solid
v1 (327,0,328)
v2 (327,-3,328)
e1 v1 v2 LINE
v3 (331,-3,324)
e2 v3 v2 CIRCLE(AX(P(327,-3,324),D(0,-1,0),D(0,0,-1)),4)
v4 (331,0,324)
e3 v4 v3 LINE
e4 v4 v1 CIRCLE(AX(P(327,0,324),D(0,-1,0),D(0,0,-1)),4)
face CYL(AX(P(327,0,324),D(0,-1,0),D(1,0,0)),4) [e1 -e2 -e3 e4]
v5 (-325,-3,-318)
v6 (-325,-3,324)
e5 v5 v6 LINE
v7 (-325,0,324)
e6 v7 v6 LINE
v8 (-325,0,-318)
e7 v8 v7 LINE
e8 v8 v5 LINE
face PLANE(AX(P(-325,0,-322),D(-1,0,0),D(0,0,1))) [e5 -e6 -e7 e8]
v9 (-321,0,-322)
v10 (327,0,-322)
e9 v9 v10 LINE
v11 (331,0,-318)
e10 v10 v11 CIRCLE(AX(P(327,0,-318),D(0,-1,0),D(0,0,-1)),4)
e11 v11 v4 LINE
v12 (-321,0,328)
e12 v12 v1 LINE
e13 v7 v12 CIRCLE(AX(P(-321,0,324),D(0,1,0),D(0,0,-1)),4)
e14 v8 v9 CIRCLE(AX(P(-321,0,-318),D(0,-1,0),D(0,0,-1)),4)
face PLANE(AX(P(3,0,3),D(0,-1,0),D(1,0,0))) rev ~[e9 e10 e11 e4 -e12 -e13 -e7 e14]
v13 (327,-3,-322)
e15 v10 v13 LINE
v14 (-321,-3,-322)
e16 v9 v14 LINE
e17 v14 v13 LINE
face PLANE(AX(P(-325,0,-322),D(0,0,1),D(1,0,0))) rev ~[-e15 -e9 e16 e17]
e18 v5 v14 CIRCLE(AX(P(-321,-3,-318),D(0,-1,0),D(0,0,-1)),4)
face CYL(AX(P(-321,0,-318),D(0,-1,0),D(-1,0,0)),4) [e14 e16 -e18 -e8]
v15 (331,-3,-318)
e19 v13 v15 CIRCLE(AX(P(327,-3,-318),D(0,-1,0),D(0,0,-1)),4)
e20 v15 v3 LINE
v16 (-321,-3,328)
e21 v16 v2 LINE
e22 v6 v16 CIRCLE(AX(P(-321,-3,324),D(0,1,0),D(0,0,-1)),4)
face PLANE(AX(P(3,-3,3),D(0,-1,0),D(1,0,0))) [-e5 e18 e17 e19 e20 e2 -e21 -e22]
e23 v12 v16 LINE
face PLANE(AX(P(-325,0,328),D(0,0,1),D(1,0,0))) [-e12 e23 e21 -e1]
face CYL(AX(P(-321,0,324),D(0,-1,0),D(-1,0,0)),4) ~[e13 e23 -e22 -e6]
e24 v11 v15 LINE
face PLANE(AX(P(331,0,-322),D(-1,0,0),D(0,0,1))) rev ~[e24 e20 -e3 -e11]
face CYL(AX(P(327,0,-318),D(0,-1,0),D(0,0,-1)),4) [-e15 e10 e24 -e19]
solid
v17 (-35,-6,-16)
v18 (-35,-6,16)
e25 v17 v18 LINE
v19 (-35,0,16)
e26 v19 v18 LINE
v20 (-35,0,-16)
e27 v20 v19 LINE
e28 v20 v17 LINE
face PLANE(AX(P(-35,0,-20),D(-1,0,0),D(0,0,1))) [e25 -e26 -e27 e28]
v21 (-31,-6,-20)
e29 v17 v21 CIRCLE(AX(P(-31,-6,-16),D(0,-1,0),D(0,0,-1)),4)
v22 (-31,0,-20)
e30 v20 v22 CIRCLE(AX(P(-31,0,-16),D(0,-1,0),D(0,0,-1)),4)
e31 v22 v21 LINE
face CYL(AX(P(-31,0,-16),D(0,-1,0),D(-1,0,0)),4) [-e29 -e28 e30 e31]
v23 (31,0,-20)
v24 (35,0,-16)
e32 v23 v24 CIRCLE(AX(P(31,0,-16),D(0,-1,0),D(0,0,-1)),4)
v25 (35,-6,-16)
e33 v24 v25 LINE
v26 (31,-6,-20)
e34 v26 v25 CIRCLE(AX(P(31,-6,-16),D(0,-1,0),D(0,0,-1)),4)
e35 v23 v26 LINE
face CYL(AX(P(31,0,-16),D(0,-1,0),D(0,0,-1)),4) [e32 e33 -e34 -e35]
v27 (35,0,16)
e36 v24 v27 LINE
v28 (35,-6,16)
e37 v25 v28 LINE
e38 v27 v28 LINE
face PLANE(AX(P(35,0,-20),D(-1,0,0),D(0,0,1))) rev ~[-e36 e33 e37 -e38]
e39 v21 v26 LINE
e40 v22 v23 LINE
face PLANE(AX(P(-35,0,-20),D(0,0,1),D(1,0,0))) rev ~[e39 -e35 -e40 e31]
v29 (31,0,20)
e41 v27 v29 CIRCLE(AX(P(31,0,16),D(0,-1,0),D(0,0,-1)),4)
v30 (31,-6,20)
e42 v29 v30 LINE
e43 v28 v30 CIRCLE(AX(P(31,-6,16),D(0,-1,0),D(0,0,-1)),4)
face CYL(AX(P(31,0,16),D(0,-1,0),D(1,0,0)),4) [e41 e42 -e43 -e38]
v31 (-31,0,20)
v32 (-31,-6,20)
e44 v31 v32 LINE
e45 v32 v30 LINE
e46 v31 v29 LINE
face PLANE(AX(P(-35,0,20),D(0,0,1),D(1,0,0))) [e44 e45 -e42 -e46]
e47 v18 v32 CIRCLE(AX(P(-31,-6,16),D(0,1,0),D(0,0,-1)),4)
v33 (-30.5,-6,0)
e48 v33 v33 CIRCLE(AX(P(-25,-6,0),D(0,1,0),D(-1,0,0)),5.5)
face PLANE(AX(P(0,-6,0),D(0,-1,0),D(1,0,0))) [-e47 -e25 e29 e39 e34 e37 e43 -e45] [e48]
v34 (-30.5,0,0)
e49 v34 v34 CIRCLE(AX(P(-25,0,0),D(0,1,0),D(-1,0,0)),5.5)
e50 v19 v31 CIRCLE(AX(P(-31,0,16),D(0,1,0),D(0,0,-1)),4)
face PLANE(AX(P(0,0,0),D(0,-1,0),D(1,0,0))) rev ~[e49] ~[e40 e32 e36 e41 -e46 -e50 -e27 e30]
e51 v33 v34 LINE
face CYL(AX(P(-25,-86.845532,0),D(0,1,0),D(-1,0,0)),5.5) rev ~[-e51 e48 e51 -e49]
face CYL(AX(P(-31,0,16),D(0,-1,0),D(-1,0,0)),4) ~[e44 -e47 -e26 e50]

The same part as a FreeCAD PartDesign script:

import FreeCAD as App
import Part
import Sketcher


def edges_at(feature, points):
    """Names of the edges that pass closest to the given points."""
    edges = feature.Shape.Edges
    near = lambda p: min(range(len(edges)), key=lambda i: edges[i].distToShape(Part.Vertex(*p))[0])
    return sorted({f"Edge{near(p) + 1}" for p in points})

doc = App.newDocument("Part")
body = doc.addObject("PartDesign::Body", "Body")

sketch1 = body.newObject("Sketcher::SketchObject", "Sketch")
sketch1.AttachmentSupport = (doc.getObject("XZ_Plane"), [""])
sketch1.MapMode = "FlatFace"
sketch1.addGeometry(Part.LineSegment(App.Vector(-35, 20, 0), App.Vector(-35, -20, 0)), False)
sketch1.addGeometry(Part.LineSegment(App.Vector(-35, -20, 0), App.Vector(35, -20, 0)), False)
sketch1.addGeometry(Part.LineSegment(App.Vector(35, -20, 0), App.Vector(35, 20, 0)), False)
sketch1.addGeometry(Part.LineSegment(App.Vector(35, 20, 0), App.Vector(-35, 20, 0)), False)
sketch1.addConstraint(Sketcher.Constraint("Coincident", 0, 2, 1, 1))
sketch1.addConstraint(Sketcher.Constraint("Coincident", 1, 2, 2, 1))
sketch1.addConstraint(Sketcher.Constraint("Coincident", 2, 2, 3, 1))
sketch1.addConstraint(Sketcher.Constraint("Coincident", 3, 2, 0, 1))
sketch1.addConstraint(Sketcher.Constraint("Vertical", 0))
sketch1.addConstraint(Sketcher.Constraint("Horizontal", 1))
sketch1.addConstraint(Sketcher.Constraint("Vertical", 2))
sketch1.addConstraint(Sketcher.Constraint("Horizontal", 3))
sketch1.addConstraint(Sketcher.Constraint("Symmetric", 0, 2, 2, 2, -1, 1))
sketch1.addConstraint(Sketcher.Constraint("DistanceX", 1, 1, 1, 2, 70.0))
sketch1.addConstraint(Sketcher.Constraint("DistanceY", 0, 2, 0, 1, 40.0))
pad1 = body.newObject("PartDesign::Pad", "Pad")
pad1.Profile = sketch1
pad1.Length = 6
doc.recompute()

fillet = body.newObject("PartDesign::Fillet", "Fillet")
fillet.Base = (pad1, edges_at(pad1, [
    (35, -3, 20),
    (35, -3, -20),
    (-35, -3, 20),
    (-35, -3, -20),
]))
fillet.Radius = 4

sketch2 = body.newObject("Sketcher::SketchObject", "Sketch001")
sketch2.AttachmentSupport = (doc.getObject("XZ_Plane"), [""])
sketch2.MapMode = "FlatFace"
sketch2.AttachmentOffset = App.Placement(App.Vector(0, 0, 6), App.Rotation())
sketch2.addGeometry(Part.Circle(App.Vector(-25, 0, 0), App.Vector(0, 0, 1), 6), False)
sketch2.addConstraint(Sketcher.Constraint("PointOnObject", 0, 3, -1))
sketch2.addConstraint(Sketcher.Constraint("Diameter", 0, 11.0))
sketch2.addConstraint(Sketcher.Constraint("DistanceX", 0, 3, -1, 1, 25.0))
doc.recompute()
hole = body.newObject("PartDesign::Hole", "Hole")
hole.Profile = sketch2
hole.ThreadType = "None"
hole.Diameter = 11
hole.DepthType = "ThroughAll"
body2 = doc.addObject("PartDesign::Body", "Body001")

sketch3 = body2.newObject("Sketcher::SketchObject", "Sketch002")
sketch3.AttachmentSupport = (doc.getObject("XZ_Plane001"), [""])
sketch3.MapMode = "FlatFace"
sketch3.addGeometry(Part.LineSegment(App.Vector(-325, 328, 0), App.Vector(-325, -322, 0)), False)
sketch3.addGeometry(Part.LineSegment(App.Vector(-325, -322, 0), App.Vector(331, -322, 0)), False)
sketch3.addGeometry(Part.LineSegment(App.Vector(331, -322, 0), App.Vector(331, 328, 0)), False)
sketch3.addGeometry(Part.LineSegment(App.Vector(331, 328, 0), App.Vector(-325, 328, 0)), False)
sketch3.addConstraint(Sketcher.Constraint("Coincident", 0, 2, 1, 1))
sketch3.addConstraint(Sketcher.Constraint("Coincident", 1, 2, 2, 1))
sketch3.addConstraint(Sketcher.Constraint("Coincident", 2, 2, 3, 1))
sketch3.addConstraint(Sketcher.Constraint("Coincident", 3, 2, 0, 1))
sketch3.addConstraint(Sketcher.Constraint("Vertical", 0))
sketch3.addConstraint(Sketcher.Constraint("Horizontal", 1))
sketch3.addConstraint(Sketcher.Constraint("Vertical", 2))
sketch3.addConstraint(Sketcher.Constraint("Horizontal", 3))
sketch3.addConstraint(Sketcher.Constraint("DistanceX", 1, 1, 1, 2, 656.0))
sketch3.addConstraint(Sketcher.Constraint("DistanceY", 0, 2, 0, 1, 650.0))
sketch3.addConstraint(Sketcher.Constraint("DistanceX", 0, 2, -1, 1, 325.0))
sketch3.addConstraint(Sketcher.Constraint("DistanceY", 0, 2, -1, 1, 322.0))
pad2 = body2.newObject("PartDesign::Pad", "Pad001")
pad2.Profile = sketch3
pad2.Length = 3
doc.recompute()

fillet2 = body2.newObject("PartDesign::Fillet", "Fillet001")
fillet2.Base = (pad2, edges_at(pad2, [
    (331, -1.5, 328),
    (-325, -1.5, 328),
    (331, -1.5, -322),
    (-325, -1.5, -322),
]))
fillet2.Radius = 4

doc.recompute()
